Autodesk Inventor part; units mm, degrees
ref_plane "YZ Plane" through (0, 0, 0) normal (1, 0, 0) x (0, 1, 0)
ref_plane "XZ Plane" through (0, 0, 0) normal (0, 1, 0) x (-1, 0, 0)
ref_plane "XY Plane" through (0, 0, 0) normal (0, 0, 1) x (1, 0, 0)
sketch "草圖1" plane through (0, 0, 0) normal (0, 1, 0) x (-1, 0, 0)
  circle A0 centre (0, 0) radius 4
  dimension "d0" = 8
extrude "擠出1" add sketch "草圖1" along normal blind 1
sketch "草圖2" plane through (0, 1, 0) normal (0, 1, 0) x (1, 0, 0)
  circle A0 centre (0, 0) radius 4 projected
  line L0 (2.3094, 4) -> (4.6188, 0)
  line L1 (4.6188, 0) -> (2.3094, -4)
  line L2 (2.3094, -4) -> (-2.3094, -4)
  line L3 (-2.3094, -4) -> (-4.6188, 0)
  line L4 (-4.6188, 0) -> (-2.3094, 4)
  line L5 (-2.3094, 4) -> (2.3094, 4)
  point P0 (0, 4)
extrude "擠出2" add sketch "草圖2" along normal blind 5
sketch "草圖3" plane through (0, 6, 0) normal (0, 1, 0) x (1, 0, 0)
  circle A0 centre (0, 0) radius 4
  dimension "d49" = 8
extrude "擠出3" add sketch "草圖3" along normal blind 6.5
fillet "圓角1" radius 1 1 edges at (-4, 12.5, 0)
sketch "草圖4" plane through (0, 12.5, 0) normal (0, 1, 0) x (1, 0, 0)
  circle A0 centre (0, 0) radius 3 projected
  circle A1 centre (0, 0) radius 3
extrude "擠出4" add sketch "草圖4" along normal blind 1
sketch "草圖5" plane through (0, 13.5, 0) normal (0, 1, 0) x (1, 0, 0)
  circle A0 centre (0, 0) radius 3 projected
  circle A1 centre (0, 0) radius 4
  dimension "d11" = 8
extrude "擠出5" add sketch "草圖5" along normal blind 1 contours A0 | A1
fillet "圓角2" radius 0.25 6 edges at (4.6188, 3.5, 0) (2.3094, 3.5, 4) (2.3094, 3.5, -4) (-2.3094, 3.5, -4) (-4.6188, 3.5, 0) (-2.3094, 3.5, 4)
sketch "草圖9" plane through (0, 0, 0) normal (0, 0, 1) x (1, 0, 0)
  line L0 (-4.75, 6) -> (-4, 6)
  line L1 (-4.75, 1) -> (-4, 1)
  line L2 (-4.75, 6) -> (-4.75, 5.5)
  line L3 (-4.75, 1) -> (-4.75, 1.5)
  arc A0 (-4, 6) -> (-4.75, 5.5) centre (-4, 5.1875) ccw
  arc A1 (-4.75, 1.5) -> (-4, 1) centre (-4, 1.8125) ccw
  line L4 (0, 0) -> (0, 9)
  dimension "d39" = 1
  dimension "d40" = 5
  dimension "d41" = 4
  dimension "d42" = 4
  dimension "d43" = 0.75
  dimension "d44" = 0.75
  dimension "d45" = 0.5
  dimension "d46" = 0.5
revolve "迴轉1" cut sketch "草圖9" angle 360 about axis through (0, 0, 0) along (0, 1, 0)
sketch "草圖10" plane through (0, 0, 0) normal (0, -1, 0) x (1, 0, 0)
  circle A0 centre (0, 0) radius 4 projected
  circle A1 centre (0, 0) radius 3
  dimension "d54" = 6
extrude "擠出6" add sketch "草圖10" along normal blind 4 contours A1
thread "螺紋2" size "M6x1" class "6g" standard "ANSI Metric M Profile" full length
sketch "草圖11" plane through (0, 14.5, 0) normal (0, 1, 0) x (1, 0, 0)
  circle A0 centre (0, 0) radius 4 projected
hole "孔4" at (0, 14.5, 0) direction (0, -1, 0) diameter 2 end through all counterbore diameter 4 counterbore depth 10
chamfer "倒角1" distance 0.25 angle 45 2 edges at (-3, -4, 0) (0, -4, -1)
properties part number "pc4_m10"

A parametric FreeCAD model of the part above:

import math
import FreeCAD as App
import Part
import Sketcher
Q = App.Units.Quantity


def edges_at(feature, points):
    """Names of the edges that pass closest to the given points."""
    edges = feature.Shape.Edges
    near = lambda p: min(range(len(edges)), key=lambda i: edges[i].distToShape(Part.Vertex(*p))[0])
    return sorted({f"Edge{near(p) + 1}" for p in points})

doc = App.newDocument("Part")
body = doc.addObject("PartDesign::Body", "Body")

# Sketch on XZ plane
sketch1 = doc.addObject("Sketcher::SketchObject", "Sketch")
body.addObject(sketch1)
sketch1.AttachmentSupport = (doc.XZ_Plane, [""])
sketch1.MapMode = "FlatFace"
sketch1.addGeometry(Part.Circle(App.Vector(0, 0, 0), App.Vector(0, 0, 1), 4), False)
sketch1.addConstraint(Sketcher.Constraint("Coincident", 0, 3, -1, 1))
sketch1.addConstraint(Sketcher.Constraint("Diameter", 0, 8.0))
pad1 = doc.addObject("PartDesign::Pad", "Pad")
body.addObject(pad1)
pad1.Profile = sketch1
pad1.Length = 1
pad1.Reversed = True

# Sketch on XZ plane
sketch2 = doc.addObject("Sketcher::SketchObject", "Sketch001")
body.addObject(sketch2)
sketch2.AttachmentSupport = (doc.XZ_Plane, [""])
sketch2.MapMode = "FlatFace"
sketch2.AttachmentOffset = App.Placement(App.Vector(0, 0, -1), App.Rotation())
sketch2.addGeometry(Part.LineSegment(App.Vector(4.6188, 0, 0), App.Vector(2.3094, -4, 0)), False)
sketch2.addGeometry(Part.LineSegment(App.Vector(2.3094, -4, 0), App.Vector(-2.3094, -4, 0)), False)
sketch2.addGeometry(Part.LineSegment(App.Vector(-2.3094, -4, 0), App.Vector(-4.6188, 0, 0)), False)
sketch2.addGeometry(Part.LineSegment(App.Vector(-4.6188, 0, 0), App.Vector(-2.3094, 4, 0)), False)
sketch2.addGeometry(Part.LineSegment(App.Vector(-2.3094, 4, 0), App.Vector(2.3094, 4, 0)), False)
sketch2.addGeometry(Part.LineSegment(App.Vector(2.3094, 4, 0), App.Vector(4.6188, 0, 0)), False)
sketch2.addConstraint(Sketcher.Constraint("Coincident", 0, 2, 1, 1))
sketch2.addConstraint(Sketcher.Constraint("Coincident", 1, 2, 2, 1))
sketch2.addConstraint(Sketcher.Constraint("Coincident", 2, 2, 3, 1))
sketch2.addConstraint(Sketcher.Constraint("Coincident", 3, 2, 4, 1))
sketch2.addConstraint(Sketcher.Constraint("Coincident", 4, 2, 5, 1))
sketch2.addConstraint(Sketcher.Constraint("Coincident", 5, 2, 0, 1))
sketch2.addConstraint(Sketcher.Constraint("Horizontal", 1))
sketch2.addConstraint(Sketcher.Constraint("Horizontal", 4))
sketch2.addConstraint(Sketcher.Constraint("Symmetric", 0, 2, 3, 2, -1, 1))
sketch2.addConstraint(Sketcher.Constraint("Symmetric", 2, 2, 5, 2, -1, 1))
sketch2.addConstraint(Sketcher.Constraint("PointOnObject", 2, 2, -1))
sketch2.addConstraint(Sketcher.Constraint("Parallel", 2, 5))
sketch2.addConstraint(Sketcher.Constraint("Vertical", 1, 2, 3, 2))
sketch2.addConstraint(Sketcher.Constraint("Angle", 0, Q("-120 deg")))
sketch2.addConstraint(Sketcher.Constraint("DistanceY", 0, 2, -1, 1, 4.0))
sketch2.addConstraint(Sketcher.Constraint("DistanceX", 1, 2, 1, 1, 4.6188))
pad2 = doc.addObject("PartDesign::Pad", "Pad001")
body.addObject(pad2)
pad2.Profile = sketch2
pad2.Length = 5
pad2.Reversed = True

# Sketch on XZ plane
sketch3 = doc.addObject("Sketcher::SketchObject", "Sketch002")
body.addObject(sketch3)
sketch3.AttachmentSupport = (doc.XZ_Plane, [""])
sketch3.MapMode = "FlatFace"
sketch3.AttachmentOffset = App.Placement(App.Vector(0, 0, -6), App.Rotation())
sketch3.addGeometry(Part.Circle(App.Vector(0, 0, 0), App.Vector(0, 0, 1), 4), False)
sketch3.addConstraint(Sketcher.Constraint("Coincident", 0, 3, -1, 1))
sketch3.addConstraint(Sketcher.Constraint("Diameter", 0, 8.0))
pad3 = doc.addObject("PartDesign::Pad", "Pad002")
body.addObject(pad3)
pad3.Profile = sketch3
pad3.Length = 6.5
pad3.Reversed = True
doc.recompute()

fillet = doc.addObject("PartDesign::Fillet", "Fillet")
body.addObject(fillet)
fillet.Base = (pad3, edges_at(pad3, [(-4, 12.5, 0)]))
fillet.Radius = 1

# Sketch on XZ plane
sketch4 = doc.addObject("Sketcher::SketchObject", "Sketch003")
body.addObject(sketch4)
sketch4.AttachmentSupport = (doc.XZ_Plane, [""])
sketch4.MapMode = "FlatFace"
sketch4.AttachmentOffset = App.Placement(App.Vector(0, 0, -12.5), App.Rotation())
sketch4.addGeometry(Part.Circle(App.Vector(0, 0, 0), App.Vector(0, 0, 1), 3), False)
sketch4.addConstraint(Sketcher.Constraint("Coincident", 0, 3, -1, 1))
sketch4.addConstraint(Sketcher.Constraint("Diameter", 0, 6.0))
pad4 = doc.addObject("PartDesign::Pad", "Pad003")
body.addObject(pad4)
pad4.Profile = sketch4
pad4.Length = 1
pad4.Reversed = True

# Sketch on XZ plane
sketch5 = doc.addObject("Sketcher::SketchObject", "Sketch004")
body.addObject(sketch5)
sketch5.AttachmentSupport = (doc.XZ_Plane, [""])
sketch5.MapMode = "FlatFace"
sketch5.AttachmentOffset = App.Placement(App.Vector(0, 0, -13.5), App.Rotation())
sketch5.addGeometry(Part.Circle(App.Vector(0, 0, 0), App.Vector(0, 0, 1), 4), False)
sketch5.addConstraint(Sketcher.Constraint("Coincident", 0, 3, -1, 1))
sketch5.addConstraint(Sketcher.Constraint("Diameter", 0, 8.0))
pad5 = doc.addObject("PartDesign::Pad", "Pad004")
body.addObject(pad5)
pad5.Profile = sketch5
pad5.Length = 1
pad5.Reversed = True
doc.recompute()

fillet2 = doc.addObject("PartDesign::Fillet", "Fillet001")
body.addObject(fillet2)
fillet2.Base = (pad5, edges_at(pad5, [
    (4.619, 3.5, 0),
    (2.309, 3.5, 4),
    (2.309, 3.5, -4),
    (-2.309, 3.5, -4),
    (-4.619, 3.5, 0),
    (-2.309, 3.5, 4),
]))
fillet2.Radius = 0.25

# Sketch on XY plane
sketch6 = doc.addObject("Sketcher::SketchObject", "Sketch005")
body.addObject(sketch6)
sketch6.AttachmentSupport = (doc.XY_Plane, [""])
sketch6.MapMode = "FlatFace"
sketch6.addGeometry(Part.LineSegment(App.Vector(-4, 6, 0), App.Vector(-4.75, 6, 0)), False)
sketch6.addGeometry(Part.LineSegment(App.Vector(-4.75, 6, 0), App.Vector(-4.75, 5.5, 0)), False)
sketch6.addGeometry(Part.ArcOfCircle(Part.Circle(App.Vector(-4, 5.1875, 0), App.Vector(0, 0, 1), 0.8125), math.radians(90), math.radians(157.380135)), False)
sketch6.addGeometry(Part.LineSegment(App.Vector(-4.75, 1.5, 0), App.Vector(-4.75, 1, 0)), False)
sketch6.addGeometry(Part.LineSegment(App.Vector(-4.75, 1, 0), App.Vector(-4, 1, 0)), False)
sketch6.addGeometry(Part.ArcOfCircle(Part.Circle(App.Vector(-4, 1.8125, 0), App.Vector(0, 0, 1), 0.8125), math.radians(-157.380135), math.radians(-90)), False)
sketch6.addConstraint(Sketcher.Constraint("Coincident", 0, 2, 1, 1))
sketch6.addConstraint(Sketcher.Constraint("Coincident", 1, 2, 2, 2))
sketch6.addConstraint(Sketcher.Constraint("Tangent", 2, 1, 0, 1))
sketch6.addConstraint(Sketcher.Constraint("Coincident", 3, 2, 4, 1))
sketch6.addConstraint(Sketcher.Constraint("Tangent", 4, 2, 5, 2))
sketch6.addConstraint(Sketcher.Constraint("Coincident", 5, 1, 3, 1))
sketch6.addConstraint(Sketcher.Constraint("Horizontal", 0))
sketch6.addConstraint(Sketcher.Constraint("Vertical", 1))
sketch6.addConstraint(Sketcher.Constraint("Vertical", 3))
sketch6.addConstraint(Sketcher.Constraint("Horizontal", 4))
sketch6.addConstraint(Sketcher.Constraint("Equal", 2, 5))
sketch6.addConstraint(Sketcher.Constraint("Vertical", 2, 3, 5, 3))
sketch6.addConstraint(Sketcher.Constraint("Vertical", 1, 2, 3, 2))
sketch6.addConstraint(Sketcher.Constraint("DistanceY", 1, 2, 1, 1, 0.5))
sketch6.addConstraint(Sketcher.Constraint("DistanceX", 2, 3, -1, 1, 4.0))
sketch6.addConstraint(Sketcher.Constraint("DistanceY", -1, 1, 3, 2, 1.0))
sketch6.addConstraint(Sketcher.Constraint("DistanceY", 3, 2, 0, 2, 5.0))
sketch6.addConstraint(Sketcher.Constraint("DistanceX", 0, 2, 0, 1, 0.75))
groove = doc.addObject("PartDesign::Groove", "Groove")
body.addObject(groove)
groove.Profile = sketch6
groove.ReferenceAxis = (sketch6, ["V_Axis"])
groove.Angle = 360

# Sketch on XZ plane
sketch7 = doc.addObject("Sketcher::SketchObject", "Sketch006")
body.addObject(sketch7)
sketch7.AttachmentSupport = (doc.XZ_Plane, [""])
sketch7.MapMode = "FlatFace"
sketch7.addGeometry(Part.Circle(App.Vector(0, 0, 0), App.Vector(0, 0, 1), 3), False)
sketch7.addConstraint(Sketcher.Constraint("Coincident", 0, 3, -1, 1))
sketch7.addConstraint(Sketcher.Constraint("Diameter", 0, 6.0))
pad6 = doc.addObject("PartDesign::Pad", "Pad005")
body.addObject(pad6)
pad6.Profile = sketch7
pad6.Length = 4

# Sketch on XZ plane
sketch8 = doc.addObject("Sketcher::SketchObject", "Sketch007")
body.addObject(sketch8)
sketch8.AttachmentSupport = (doc.XZ_Plane, [""])
sketch8.MapMode = "FlatFace"
sketch8.AttachmentOffset = App.Placement(App.Vector(0, 0, -14.5), App.Rotation())
sketch8.addGeometry(Part.Circle(App.Vector(0, 0, 0), App.Vector(0, 0, 1), 1), False)
sketch8.addConstraint(Sketcher.Constraint("Coincident", 0, 3, -1, 1))
sketch8.addConstraint(Sketcher.Constraint("Diameter", 0, 2.0))
doc.recompute()
hole = doc.addObject("PartDesign::Hole", "Hole")
body.addObject(hole)
hole.Profile = sketch8
hole.ThreadType = "None"
hole.Diameter = 2
hole.DepthType = "ThroughAll"
hole.HoleCutType = "Counterbore"
hole.HoleCutDiameter = 4
hole.HoleCutDepth = 10
hole.Reversed = True
doc.recompute()

chamfer = doc.addObject("PartDesign::Chamfer", "Chamfer")
body.addObject(chamfer)
chamfer.Base = (hole, edges_at(hole, [(-3, -4, 0), (0, -4, -1)]))
chamfer.Size = 0.25

doc.recompute()
